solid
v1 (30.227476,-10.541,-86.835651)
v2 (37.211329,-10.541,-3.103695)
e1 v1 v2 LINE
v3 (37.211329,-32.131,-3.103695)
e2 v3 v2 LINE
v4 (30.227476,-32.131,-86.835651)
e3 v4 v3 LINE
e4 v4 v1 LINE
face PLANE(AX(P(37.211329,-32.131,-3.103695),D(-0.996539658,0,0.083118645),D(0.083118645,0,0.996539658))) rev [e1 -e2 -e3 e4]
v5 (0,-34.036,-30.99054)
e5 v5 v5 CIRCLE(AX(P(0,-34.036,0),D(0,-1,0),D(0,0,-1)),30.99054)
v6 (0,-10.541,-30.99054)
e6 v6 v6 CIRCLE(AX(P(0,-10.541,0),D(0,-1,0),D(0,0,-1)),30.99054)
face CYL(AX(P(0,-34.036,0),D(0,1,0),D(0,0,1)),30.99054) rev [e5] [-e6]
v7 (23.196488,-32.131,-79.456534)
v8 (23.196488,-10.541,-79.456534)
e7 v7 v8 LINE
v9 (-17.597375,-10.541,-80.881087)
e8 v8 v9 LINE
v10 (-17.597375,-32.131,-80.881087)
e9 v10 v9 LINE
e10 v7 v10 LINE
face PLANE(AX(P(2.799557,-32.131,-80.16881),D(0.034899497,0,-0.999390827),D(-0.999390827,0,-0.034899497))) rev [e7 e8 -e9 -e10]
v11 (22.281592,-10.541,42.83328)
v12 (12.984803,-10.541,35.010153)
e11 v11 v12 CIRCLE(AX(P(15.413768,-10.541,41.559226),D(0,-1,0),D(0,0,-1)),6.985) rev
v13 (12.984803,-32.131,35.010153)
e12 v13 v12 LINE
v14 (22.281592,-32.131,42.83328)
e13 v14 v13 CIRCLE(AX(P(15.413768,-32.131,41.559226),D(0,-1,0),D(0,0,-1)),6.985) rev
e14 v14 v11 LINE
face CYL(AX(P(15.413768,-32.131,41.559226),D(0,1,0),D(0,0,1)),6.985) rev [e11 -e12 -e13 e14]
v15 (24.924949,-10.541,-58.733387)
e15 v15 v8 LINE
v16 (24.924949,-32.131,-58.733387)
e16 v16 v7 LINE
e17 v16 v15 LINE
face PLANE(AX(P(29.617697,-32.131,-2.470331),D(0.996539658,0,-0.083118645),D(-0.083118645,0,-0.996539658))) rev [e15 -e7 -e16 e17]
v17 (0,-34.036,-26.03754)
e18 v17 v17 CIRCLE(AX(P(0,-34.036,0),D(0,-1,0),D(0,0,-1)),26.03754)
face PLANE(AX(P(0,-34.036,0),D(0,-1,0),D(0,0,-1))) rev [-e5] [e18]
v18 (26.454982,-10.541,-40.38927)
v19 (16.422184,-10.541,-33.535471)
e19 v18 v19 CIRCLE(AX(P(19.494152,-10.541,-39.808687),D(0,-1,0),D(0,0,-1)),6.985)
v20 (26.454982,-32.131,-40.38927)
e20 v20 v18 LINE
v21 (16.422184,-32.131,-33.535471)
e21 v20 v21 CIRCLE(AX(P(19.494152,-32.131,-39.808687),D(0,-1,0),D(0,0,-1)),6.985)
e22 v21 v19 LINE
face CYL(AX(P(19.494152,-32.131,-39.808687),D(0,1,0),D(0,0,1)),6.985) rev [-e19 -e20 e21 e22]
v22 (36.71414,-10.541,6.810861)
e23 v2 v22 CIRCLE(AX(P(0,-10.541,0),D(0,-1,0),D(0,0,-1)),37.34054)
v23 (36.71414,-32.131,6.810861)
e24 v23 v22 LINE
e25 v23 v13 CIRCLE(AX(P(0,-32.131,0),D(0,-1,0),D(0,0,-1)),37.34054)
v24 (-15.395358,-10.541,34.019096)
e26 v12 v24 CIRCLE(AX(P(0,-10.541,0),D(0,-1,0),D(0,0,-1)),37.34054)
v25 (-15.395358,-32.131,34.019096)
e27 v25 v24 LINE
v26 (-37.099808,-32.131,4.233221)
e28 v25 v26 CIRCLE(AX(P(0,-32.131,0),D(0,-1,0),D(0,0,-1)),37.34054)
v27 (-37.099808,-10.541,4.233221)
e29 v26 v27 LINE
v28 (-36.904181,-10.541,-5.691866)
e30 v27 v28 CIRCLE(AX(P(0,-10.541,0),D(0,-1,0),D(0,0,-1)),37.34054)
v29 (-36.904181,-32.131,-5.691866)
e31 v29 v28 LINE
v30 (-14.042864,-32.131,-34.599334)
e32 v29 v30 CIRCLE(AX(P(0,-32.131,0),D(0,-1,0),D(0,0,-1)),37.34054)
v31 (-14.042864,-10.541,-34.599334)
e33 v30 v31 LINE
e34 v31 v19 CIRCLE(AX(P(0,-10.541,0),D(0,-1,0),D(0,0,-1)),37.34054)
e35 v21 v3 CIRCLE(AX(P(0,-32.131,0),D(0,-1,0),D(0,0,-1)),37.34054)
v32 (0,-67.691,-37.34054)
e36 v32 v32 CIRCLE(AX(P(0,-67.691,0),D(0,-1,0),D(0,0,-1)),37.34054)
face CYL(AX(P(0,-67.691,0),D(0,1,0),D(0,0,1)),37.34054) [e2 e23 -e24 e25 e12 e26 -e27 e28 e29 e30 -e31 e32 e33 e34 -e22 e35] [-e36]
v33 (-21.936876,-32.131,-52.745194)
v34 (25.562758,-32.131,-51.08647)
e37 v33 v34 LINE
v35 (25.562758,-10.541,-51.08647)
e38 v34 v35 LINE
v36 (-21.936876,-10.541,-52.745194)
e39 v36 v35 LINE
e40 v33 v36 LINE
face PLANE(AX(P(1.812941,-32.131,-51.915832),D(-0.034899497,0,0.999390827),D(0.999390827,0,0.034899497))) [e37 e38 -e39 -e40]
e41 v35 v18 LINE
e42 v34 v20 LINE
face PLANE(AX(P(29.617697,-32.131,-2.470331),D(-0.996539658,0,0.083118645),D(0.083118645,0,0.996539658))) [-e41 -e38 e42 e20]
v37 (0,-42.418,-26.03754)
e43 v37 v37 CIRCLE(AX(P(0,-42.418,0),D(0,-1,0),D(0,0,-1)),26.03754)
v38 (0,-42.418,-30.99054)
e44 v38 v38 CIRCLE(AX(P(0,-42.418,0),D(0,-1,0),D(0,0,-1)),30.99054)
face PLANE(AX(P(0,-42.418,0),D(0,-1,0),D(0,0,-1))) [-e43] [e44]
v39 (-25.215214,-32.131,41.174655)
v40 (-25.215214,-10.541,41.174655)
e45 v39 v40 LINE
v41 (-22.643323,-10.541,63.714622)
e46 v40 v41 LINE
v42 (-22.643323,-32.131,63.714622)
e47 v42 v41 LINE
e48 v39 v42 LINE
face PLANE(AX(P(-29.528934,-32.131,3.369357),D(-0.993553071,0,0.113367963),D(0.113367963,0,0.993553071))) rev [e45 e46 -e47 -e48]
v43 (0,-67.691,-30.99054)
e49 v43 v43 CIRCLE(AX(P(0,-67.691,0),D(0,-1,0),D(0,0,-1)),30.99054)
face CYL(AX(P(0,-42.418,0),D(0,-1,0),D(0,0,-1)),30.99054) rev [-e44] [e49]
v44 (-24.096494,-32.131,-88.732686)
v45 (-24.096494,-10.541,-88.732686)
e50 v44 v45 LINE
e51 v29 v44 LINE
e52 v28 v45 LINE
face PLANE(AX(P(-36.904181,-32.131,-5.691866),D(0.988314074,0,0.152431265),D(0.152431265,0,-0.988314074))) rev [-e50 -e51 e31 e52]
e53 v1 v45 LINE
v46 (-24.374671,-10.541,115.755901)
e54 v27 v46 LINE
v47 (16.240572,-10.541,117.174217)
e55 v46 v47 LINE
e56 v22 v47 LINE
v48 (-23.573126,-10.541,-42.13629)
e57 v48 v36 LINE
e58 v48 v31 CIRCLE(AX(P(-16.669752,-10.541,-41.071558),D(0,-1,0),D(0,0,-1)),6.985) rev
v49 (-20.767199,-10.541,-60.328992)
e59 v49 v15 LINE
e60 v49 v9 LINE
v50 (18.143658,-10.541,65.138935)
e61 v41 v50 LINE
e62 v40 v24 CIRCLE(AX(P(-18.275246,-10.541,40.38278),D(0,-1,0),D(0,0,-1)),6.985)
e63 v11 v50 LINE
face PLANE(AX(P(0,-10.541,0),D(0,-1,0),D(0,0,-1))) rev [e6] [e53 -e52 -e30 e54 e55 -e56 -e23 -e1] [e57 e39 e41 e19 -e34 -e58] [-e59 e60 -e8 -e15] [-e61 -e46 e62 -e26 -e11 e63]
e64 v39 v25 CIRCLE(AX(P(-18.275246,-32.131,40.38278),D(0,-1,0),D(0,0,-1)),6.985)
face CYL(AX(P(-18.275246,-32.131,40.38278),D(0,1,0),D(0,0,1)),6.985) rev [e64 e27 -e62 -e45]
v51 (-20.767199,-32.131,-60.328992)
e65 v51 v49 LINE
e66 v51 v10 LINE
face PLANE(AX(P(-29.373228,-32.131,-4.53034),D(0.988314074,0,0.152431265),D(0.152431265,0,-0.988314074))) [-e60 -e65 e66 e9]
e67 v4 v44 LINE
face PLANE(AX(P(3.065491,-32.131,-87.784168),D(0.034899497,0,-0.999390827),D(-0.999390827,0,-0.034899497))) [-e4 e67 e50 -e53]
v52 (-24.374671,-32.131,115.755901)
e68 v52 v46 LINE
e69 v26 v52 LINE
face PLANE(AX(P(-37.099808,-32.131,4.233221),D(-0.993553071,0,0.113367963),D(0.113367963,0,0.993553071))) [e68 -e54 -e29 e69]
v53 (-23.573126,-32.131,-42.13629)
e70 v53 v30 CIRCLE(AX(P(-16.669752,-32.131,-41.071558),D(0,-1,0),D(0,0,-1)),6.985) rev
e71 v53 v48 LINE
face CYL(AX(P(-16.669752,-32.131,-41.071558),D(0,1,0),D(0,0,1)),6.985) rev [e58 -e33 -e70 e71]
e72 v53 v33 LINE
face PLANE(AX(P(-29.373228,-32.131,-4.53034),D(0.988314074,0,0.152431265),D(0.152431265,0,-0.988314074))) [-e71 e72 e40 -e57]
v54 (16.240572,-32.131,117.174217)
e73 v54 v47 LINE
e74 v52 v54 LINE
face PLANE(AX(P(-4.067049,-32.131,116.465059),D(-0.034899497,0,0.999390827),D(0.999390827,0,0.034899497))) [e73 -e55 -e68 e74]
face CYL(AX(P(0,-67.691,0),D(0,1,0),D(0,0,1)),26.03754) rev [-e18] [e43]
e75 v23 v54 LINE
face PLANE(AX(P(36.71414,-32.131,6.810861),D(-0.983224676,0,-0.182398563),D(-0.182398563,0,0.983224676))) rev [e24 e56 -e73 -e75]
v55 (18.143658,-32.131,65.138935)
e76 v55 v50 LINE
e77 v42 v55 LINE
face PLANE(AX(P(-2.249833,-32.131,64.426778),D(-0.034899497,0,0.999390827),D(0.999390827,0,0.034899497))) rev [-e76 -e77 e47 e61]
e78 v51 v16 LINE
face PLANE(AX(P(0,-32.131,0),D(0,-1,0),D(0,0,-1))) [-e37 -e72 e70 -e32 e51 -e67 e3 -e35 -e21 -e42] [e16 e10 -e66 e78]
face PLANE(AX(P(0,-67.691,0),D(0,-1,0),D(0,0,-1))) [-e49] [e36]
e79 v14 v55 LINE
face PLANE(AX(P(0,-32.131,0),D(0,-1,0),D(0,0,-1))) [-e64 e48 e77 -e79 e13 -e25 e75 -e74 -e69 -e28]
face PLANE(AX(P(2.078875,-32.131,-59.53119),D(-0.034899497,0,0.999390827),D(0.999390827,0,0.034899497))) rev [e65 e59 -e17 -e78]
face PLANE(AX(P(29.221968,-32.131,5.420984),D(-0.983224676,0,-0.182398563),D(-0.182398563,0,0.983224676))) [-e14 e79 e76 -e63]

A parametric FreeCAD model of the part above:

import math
import FreeCAD as App
import Part
import Sketcher
from FreeCAD import Vector
Q = App.Units.Quantity


def add_polygon(sketch, points):
    """Adds a closed chain of lines whose ends are joined by coincident constraints."""
    first, n = sketch.GeometryCount, len(points)
    for a, b in zip(points, points[1:] + points[:1]):
        sketch.addGeometry(Part.LineSegment(App.Vector(*a, 0), App.Vector(*b, 0)), False)
    for i in range(n):
        sketch.addConstraint(Sketcher.Constraint("Coincident", first + i, 2, first + (i + 1) % n, 1))

doc = App.newDocument("Part")
body = doc.addObject("PartDesign::Body", "Body")

sketch1 = body.newObject("Sketcher::SketchObject", "Sketch")
sketch1.AttachmentSupport = (doc.getObject("XZ_Plane"), [""])
sketch1.MapMode = "FlatFace"
sketch1.AttachmentOffset = App.Placement(Vector(0, 0, 0.415 * 25.4), App.Rotation())
sketch1.addGeometry(Part.Circle(Vector(0, 0, 0), Vector(0, 0, 1), 37.34054), False)
sketch1.addGeometry(Part.Circle(Vector(0, 0, 0), Vector(0, 0, 1), 26.03754), False)
sketch1.addConstraint(Sketcher.Constraint("Coincident", 0, 3, -1, 1))
sketch1.addConstraint(Sketcher.Constraint("Coincident", 1, 3, -1, 1))
sketch1.addConstraint(Sketcher.Constraint("Diameter", 0, Q("2.9402 in")))
sketch1.addConstraint(Sketcher.Constraint("Diameter", 1, Q("2.0502 in")))
pad1 = body.newObject("PartDesign::Pad", "Pad")
pad1.Profile = sketch1
pad1.Length = Q("2.25 in")

sketch2 = body.newObject("Sketcher::SketchObject", "Sketch001")
sketch2.AttachmentSupport = (doc.getObject("XZ_Plane"), [""])
sketch2.MapMode = "FlatFace"
sketch2.AttachmentOffset = App.Placement(Vector(0, 0, 0.415 * 25.4), App.Rotation())
sketch2.addGeometry(Part.Circle(Vector(0, 0, 0), Vector(0, 0, 1), 30.99054), False)
sketch2.addGeometry(Part.Circle(Vector(0, 0, 0), Vector(0, 0, 1), 26.03754), False)
sketch2.addConstraint(Sketcher.Constraint("Coincident", 0, 3, -1, 1))
sketch2.addConstraint(Sketcher.Constraint("Coincident", 1, 3, -1, 1))
sketch2.addConstraint(Sketcher.Constraint("Diameter", 0, Q("2.4402 in")))
sketch2.addConstraint(Sketcher.Constraint("Diameter", 1, Q("2.0502 in")))
pocket1 = body.newObject("PartDesign::Pocket", "Pocket")
pocket1.Profile = sketch2
pocket1.Length = Q("0.925 in")
pocket1.Reversed = True

sketch3 = body.newObject("Sketcher::SketchObject", "Sketch002")
sketch3.AttachmentSupport = (doc.getObject("XZ_Plane"), [""])
sketch3.MapMode = "FlatFace"
sketch3.AttachmentOffset = App.Placement(Vector(0, 0, 1.67 * 25.4), App.Rotation())
sketch3.addGeometry(Part.Circle(Vector(0, 0, 0), Vector(0, 0, 1), 30.99054), False)
sketch3.addGeometry(Part.Circle(Vector(0, 0, 0), Vector(0, 0, 1), 26.03754), False)
sketch3.addConstraint(Sketcher.Constraint("Coincident", 0, 3, -1, 1))
sketch3.addConstraint(Sketcher.Constraint("Coincident", 1, 3, -1, 1))
sketch3.addConstraint(Sketcher.Constraint("Diameter", 0, Q("2.4402 in")))
sketch3.addConstraint(Sketcher.Constraint("Diameter", 1, Q("2.0502 in")))
pocket2 = body.newObject("PartDesign::Pocket", "Pocket001")
pocket2.Profile = sketch3
pocket2.Length = Q("0.995 in")
pocket2.Reversed = True

sketch4 = body.newObject("Sketcher::SketchObject", "Sketch003")
sketch4.AttachmentSupport = (doc.getObject("XZ_Plane"), [""])
sketch4.MapMode = "FlatFace"
sketch4.AttachmentOffset = App.Placement(Vector(0, 0, 0.415 * 25.4), App.Rotation())
sketch4.addGeometry(Part.ArcOfCircle(Part.Circle(Vector(-16.669752, -41.071558, 0), Vector(0, 0, 1), 6.985), math.radians(67.909196), math.radians(188.767848)), False)
sketch4.addGeometry(Part.ArcOfCircle(Part.Circle(Vector(0, 0, 0), Vector(0, 0, 1), 37.34054), math.radians(-171.232152), math.radians(-112.090804)), False)
sketch4.addGeometry(Part.LineSegment(Vector(-36.904181, -5.691866, 0), Vector(-31.892042, -38.188923, 0)), False)
sketch4.addGeometry(Part.LineSegment(Vector(-31.892042, -38.188923, 0), Vector(-24.096494, -88.732686, 0)), False)
sketch4.addGeometry(Part.LineSegment(Vector(-24.096494, -88.732686, 0), Vector(30.227476, -86.835651, 0)), False)
sketch4.addGeometry(Part.LineSegment(Vector(30.227476, -86.835651, 0), Vector(34.657917, -33.717475, 0)), False)
sketch4.addGeometry(Part.LineSegment(Vector(34.657917, -33.717475, 0), Vector(37.211329, -3.103695, 0)), False)
sketch4.addGeometry(Part.ArcOfCircle(Part.Circle(Vector(0, 0, 0), Vector(0, 0, 1), 37.34054), math.radians(-63.909196), math.radians(-4.767848)), False)
sketch4.addGeometry(Part.ArcOfCircle(Part.Circle(Vector(19.494152, -39.808687, 0), Vector(0, 0, 1), 6.985), math.radians(-4.767848), math.radians(116.090804)), False)
sketch4.addGeometry(Part.LineSegment(Vector(26.454982, -40.38927, 0), Vector(25.562758, -51.08647, 0)), False)
sketch4.addGeometry(Part.LineSegment(Vector(25.562758, -51.08647, 0), Vector(-21.936876, -52.745194, 0)), False)
sketch4.addGeometry(Part.LineSegment(Vector(-21.936876, -52.745194, 0), Vector(-23.573126, -42.13629, 0)), False)
add_polygon(sketch4, [(23.196488, -79.456534), (-17.597375, -80.881087), (-20.767199, -60.328992), (24.924949, -58.733387)])
sketch4.addConstraint(Sketcher.Constraint("Tangent", 0, 1, 1, 2))
sketch4.addConstraint(Sketcher.Constraint("Tangent", 1, 1, 2, 1))
sketch4.addConstraint(Sketcher.Constraint("Coincident", 2, 2, 3, 1))
sketch4.addConstraint(Sketcher.Constraint("Coincident", 3, 2, 4, 1))
sketch4.addConstraint(Sketcher.Constraint("Coincident", 4, 2, 5, 1))
sketch4.addConstraint(Sketcher.Constraint("Coincident", 5, 2, 6, 1))
sketch4.addConstraint(Sketcher.Constraint("Tangent", 6, 2, 7, 2))
sketch4.addConstraint(Sketcher.Constraint("Tangent", 7, 1, 8, 2))
sketch4.addConstraint(Sketcher.Constraint("Tangent", 8, 1, 9, 1))
sketch4.addConstraint(Sketcher.Constraint("Coincident", 9, 2, 10, 1))
sketch4.addConstraint(Sketcher.Constraint("Coincident", 10, 2, 11, 1))
sketch4.addConstraint(Sketcher.Constraint("Tangent", 11, 2, 0, 2))
sketch4.addConstraint(Sketcher.Constraint("Coincident", 1, 3, -1, 1))
sketch4.addConstraint(Sketcher.Constraint("Coincident", 7, 3, -1, 1))
sketch4.addConstraint(Sketcher.Constraint("Equal", 1, 7))
sketch4.addConstraint(Sketcher.Constraint("Equal", 0, 8))
sketch4.addConstraint(Sketcher.Constraint("Parallel", 2, 3))
sketch4.addConstraint(Sketcher.Constraint("Parallel", 5, 6))
sketch4.addConstraint(Sketcher.Constraint("Parallel", 6, 9))
sketch4.addConstraint(Sketcher.Constraint("Parallel", 4, 10))
sketch4.addConstraint(Sketcher.Constraint("Parallel", 3, 11))
sketch4.addConstraint(Sketcher.Constraint("Parallel", 10, 12))
sketch4.addConstraint(Sketcher.Constraint("Parallel", 11, 13))
sketch4.addConstraint(Sketcher.Constraint("Parallel", 12, 14))
sketch4.addConstraint(Sketcher.Constraint("Parallel", 9, 15))
sketch4.addConstraint(Sketcher.Constraint("Equal", 9, 11))
sketch4.addConstraint(Sketcher.Constraint("Equal", 13, 15))
sketch4.addConstraint(Sketcher.Constraint("Angle", 4, Q("2 deg")))
sketch4.addConstraint(Sketcher.Constraint("Radius", 0, Q("0.275 in")))
sketch4.addConstraint(Sketcher.Constraint("Distance", 14, Q("1.8 in")))
sketch4.addConstraint(Sketcher.Constraint("Radius", 1, Q("1.4701 in")))
sketch4.addConstraint(Sketcher.Constraint("DistanceX", 13, 2, -1, 1, 20.767199))
sketch4.addConstraint(Sketcher.Constraint("DistanceY", 3, 2, 8, 3, 48.923999))
sketch4.addConstraint(Sketcher.Constraint("DistanceY", 8, 1, 7, 1, 6.853799))
sketch4.addConstraint(Sketcher.Constraint("DistanceY", 9, 2, 8, 1, 10.6972))
sketch4.addConstraint(Sketcher.Constraint("DistanceY", 3, 2, 12, 2, 7.851599))
sketch4.addConstraint(Sketcher.Constraint("DistanceX", 10, 2, 12, 2, 4.339501))
sketch4.addConstraint(Sketcher.Constraint("DistanceY", 13, 2, 10, 2, 7.583799))
sketch4.addConstraint(Sketcher.Constraint("Distance", 5, 53.302622))
sketch4.addConstraint(Sketcher.Constraint("DistanceX", 2, 2, 0, 3, 15.22229))
pad2 = body.newObject("PartDesign::Pad", "Pad001")
pad2.Profile = sketch4
pad2.Length = Q("0.85 in")

sketch5 = body.newObject("Sketcher::SketchObject", "Sketch004")
sketch5.AttachmentSupport = (doc.getObject("XZ_Plane"), [""])
sketch5.MapMode = "FlatFace"
sketch5.AttachmentOffset = App.Placement(Vector(0, 0, 0.415 * 25.4), App.Rotation())
sketch5.addGeometry(Part.ArcOfCircle(Part.Circle(Vector(0, 0, 0), Vector(0, 0, 1), 37.34054), math.radians(114.349152), math.radians(173.490499)), False)
sketch5.addGeometry(Part.ArcOfCircle(Part.Circle(Vector(-18.275246, 40.38278, 0), Vector(0, 0, 1), 6.985), math.radians(173.490499), math.radians(294.349152)), False)
sketch5.addGeometry(Part.LineSegment(Vector(-25.215214, 41.174655, 0), Vector(-22.643323, 63.714622, 0)), False)
sketch5.addGeometry(Part.LineSegment(Vector(-22.643323, 63.714622, 0), Vector(18.143658, 65.138935, 0)), False)
sketch5.addGeometry(Part.LineSegment(Vector(18.143658, 65.138935, 0), Vector(22.281592, 42.83328, 0)), False)
sketch5.addGeometry(Part.ArcOfCircle(Part.Circle(Vector(15.413768, 41.559226, 0), Vector(0, 0, 1), 6.985), math.radians(-110.349152), math.radians(10.509501)), False)
sketch5.addGeometry(Part.ArcOfCircle(Part.Circle(Vector(0, 0, 0), Vector(0, 0, 1), 37.34054), math.radians(10.509501), math.radians(69.650848)), False)
sketch5.addGeometry(Part.LineSegment(Vector(36.71414, 6.810861, 0), Vector(16.240572, 117.174217, 0)), False)
sketch5.addGeometry(Part.LineSegment(Vector(16.240572, 117.174217, 0), Vector(-24.374671, 115.755901, 0)), False)
sketch5.addGeometry(Part.LineSegment(Vector(-24.374671, 115.755901, 0), Vector(-37.099808, 4.233221, 0)), False)
sketch5.addConstraint(Sketcher.Constraint("Tangent", 0, 1, 1, 2))
sketch5.addConstraint(Sketcher.Constraint("Tangent", 1, 1, 2, 1))
sketch5.addConstraint(Sketcher.Constraint("Coincident", 2, 2, 3, 1))
sketch5.addConstraint(Sketcher.Constraint("Coincident", 3, 2, 4, 1))
sketch5.addConstraint(Sketcher.Constraint("Tangent", 4, 2, 5, 2))
sketch5.addConstraint(Sketcher.Constraint("Tangent", 5, 1, 6, 2))
sketch5.addConstraint(Sketcher.Constraint("Tangent", 6, 1, 7, 1))
sketch5.addConstraint(Sketcher.Constraint("Coincident", 7, 2, 8, 1))
sketch5.addConstraint(Sketcher.Constraint("Coincident", 8, 2, 9, 1))
sketch5.addConstraint(Sketcher.Constraint("Tangent", 9, 2, 0, 2))
sketch5.addConstraint(Sketcher.Constraint("Coincident", 0, 3, -1, 1))
sketch5.addConstraint(Sketcher.Constraint("Coincident", 6, 3, -1, 1))
sketch5.addConstraint(Sketcher.Constraint("Equal", 1, 5))
sketch5.addConstraint(Sketcher.Constraint("Equal", 0, 6))
sketch5.addConstraint(Sketcher.Constraint("Parallel", 4, 7))
sketch5.addConstraint(Sketcher.Constraint("Parallel", 3, 8))
sketch5.addConstraint(Sketcher.Constraint("Parallel", 2, 9))
sketch5.addConstraint(Sketcher.Constraint("Equal", 2, 4))
sketch5.addConstraint(Sketcher.Constraint("Equal", 7, 9))
sketch5.addConstraint(Sketcher.Constraint("Angle", 3, Q("2 deg")))
sketch5.addConstraint(Sketcher.Constraint("Radius", 1, Q("0.275 in")))
sketch5.addConstraint(Sketcher.Constraint("Distance", 8, Q("1.6 in")))
sketch5.addConstraint(Sketcher.Constraint("Radius", 0, Q("1.4701 in")))
sketch5.addConstraint(Sketcher.Constraint("DistanceY", 1, 1, 4, 2, Q("0.0653002 in")))
sketch5.addConstraint(Sketcher.Constraint("DistanceY", -1, 1, 8, 2, 115.755901))
sketch5.addConstraint(Sketcher.Constraint("DistanceX", 1, 1, 2, 2, 2.571891))
pad3 = body.newObject("PartDesign::Pad", "Pad002")
pad3.Profile = sketch5
pad3.Length = Q("0.85 in")

doc.recompute()
